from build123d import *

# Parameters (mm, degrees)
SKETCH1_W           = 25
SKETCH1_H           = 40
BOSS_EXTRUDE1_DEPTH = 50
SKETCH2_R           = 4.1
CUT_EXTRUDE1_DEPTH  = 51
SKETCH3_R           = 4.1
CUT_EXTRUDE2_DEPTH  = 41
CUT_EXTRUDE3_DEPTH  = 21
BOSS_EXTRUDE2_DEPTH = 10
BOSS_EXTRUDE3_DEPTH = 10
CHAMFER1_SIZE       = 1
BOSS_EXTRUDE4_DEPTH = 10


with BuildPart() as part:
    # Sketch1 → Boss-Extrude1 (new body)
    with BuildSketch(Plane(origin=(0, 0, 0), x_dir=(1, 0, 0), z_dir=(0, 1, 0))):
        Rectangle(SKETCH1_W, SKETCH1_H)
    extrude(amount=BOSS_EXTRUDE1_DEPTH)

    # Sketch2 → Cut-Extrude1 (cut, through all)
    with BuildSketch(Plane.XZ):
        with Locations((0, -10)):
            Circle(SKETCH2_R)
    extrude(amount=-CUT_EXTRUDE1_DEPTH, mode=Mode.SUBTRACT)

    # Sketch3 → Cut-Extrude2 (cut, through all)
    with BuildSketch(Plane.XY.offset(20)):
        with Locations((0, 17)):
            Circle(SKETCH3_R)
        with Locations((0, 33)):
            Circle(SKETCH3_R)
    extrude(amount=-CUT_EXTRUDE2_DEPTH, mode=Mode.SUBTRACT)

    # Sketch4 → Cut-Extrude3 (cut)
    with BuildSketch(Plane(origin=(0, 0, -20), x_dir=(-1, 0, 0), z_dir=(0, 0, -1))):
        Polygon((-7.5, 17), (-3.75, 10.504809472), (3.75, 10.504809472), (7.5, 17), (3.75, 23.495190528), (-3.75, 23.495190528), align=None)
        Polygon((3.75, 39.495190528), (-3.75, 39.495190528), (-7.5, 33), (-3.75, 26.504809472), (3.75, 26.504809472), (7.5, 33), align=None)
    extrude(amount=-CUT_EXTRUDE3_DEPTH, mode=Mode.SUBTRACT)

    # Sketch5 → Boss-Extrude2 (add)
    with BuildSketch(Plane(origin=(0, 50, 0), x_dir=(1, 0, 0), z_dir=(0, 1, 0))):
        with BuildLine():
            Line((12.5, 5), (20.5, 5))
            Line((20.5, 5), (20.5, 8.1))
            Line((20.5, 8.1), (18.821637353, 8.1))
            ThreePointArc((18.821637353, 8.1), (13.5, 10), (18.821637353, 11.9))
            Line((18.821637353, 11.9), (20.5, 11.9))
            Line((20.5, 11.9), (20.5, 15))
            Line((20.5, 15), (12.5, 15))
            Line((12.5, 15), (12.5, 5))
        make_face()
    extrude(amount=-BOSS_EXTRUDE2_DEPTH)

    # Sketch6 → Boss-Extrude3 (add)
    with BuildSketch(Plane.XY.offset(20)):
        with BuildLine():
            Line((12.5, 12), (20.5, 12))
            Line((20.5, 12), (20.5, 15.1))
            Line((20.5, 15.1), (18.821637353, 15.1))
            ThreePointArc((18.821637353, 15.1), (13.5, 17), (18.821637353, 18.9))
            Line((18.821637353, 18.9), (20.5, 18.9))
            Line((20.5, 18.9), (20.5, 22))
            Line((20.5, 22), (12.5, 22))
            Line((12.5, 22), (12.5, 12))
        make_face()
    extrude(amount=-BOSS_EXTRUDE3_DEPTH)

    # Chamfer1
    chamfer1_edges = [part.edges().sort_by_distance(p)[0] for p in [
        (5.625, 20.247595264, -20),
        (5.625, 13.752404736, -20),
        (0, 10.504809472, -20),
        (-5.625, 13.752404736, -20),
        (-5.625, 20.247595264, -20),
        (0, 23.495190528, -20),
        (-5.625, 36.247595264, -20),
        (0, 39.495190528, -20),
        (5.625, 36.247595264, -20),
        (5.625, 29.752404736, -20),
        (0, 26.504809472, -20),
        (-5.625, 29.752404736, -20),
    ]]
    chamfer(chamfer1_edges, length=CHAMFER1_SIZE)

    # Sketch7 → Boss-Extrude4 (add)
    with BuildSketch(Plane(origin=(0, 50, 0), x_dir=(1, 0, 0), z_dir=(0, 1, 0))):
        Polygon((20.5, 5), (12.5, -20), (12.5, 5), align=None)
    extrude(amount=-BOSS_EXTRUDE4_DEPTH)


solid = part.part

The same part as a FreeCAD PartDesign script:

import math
import FreeCAD as App
import Part
import Sketcher
Q = App.Units.Quantity


def edges_at(feature, points):
    """Names of the edges that pass closest to the given points."""
    edges = feature.Shape.Edges
    near = lambda p: min(range(len(edges)), key=lambda i: edges[i].distToShape(Part.Vertex(*p))[0])
    return sorted({f"Edge{near(p) + 1}" for p in points})

doc = App.newDocument("Part")
body = doc.addObject("PartDesign::Body", "Body")

sketch1 = body.newObject("Sketcher::SketchObject", "Sketch")
sketch1.AttachmentSupport = (doc.getObject("XZ_Plane"), [""])
sketch1.MapMode = "FlatFace"
sketch1.addGeometry(Part.LineSegment(App.Vector(-12, -20, 0), App.Vector(-12, 20, 0)), False)
sketch1.addGeometry(Part.LineSegment(App.Vector(-12, 20, 0), App.Vector(12, 20, 0)), False)
sketch1.addGeometry(Part.LineSegment(App.Vector(12, 20, 0), App.Vector(12, -20, 0)), False)
sketch1.addGeometry(Part.LineSegment(App.Vector(12, -20, 0), App.Vector(-12, -20, 0)), False)
sketch1.addConstraint(Sketcher.Constraint("Coincident", 0, 2, 1, 1))
sketch1.addConstraint(Sketcher.Constraint("Coincident", 1, 2, 2, 1))
sketch1.addConstraint(Sketcher.Constraint("Coincident", 2, 2, 3, 1))
sketch1.addConstraint(Sketcher.Constraint("Coincident", 3, 2, 0, 1))
sketch1.addConstraint(Sketcher.Constraint("Vertical", 0))
sketch1.addConstraint(Sketcher.Constraint("Horizontal", 1))
sketch1.addConstraint(Sketcher.Constraint("Vertical", 2))
sketch1.addConstraint(Sketcher.Constraint("Horizontal", 3))
sketch1.addConstraint(Sketcher.Constraint("Symmetric", 0, 2, 2, 2, -1, 1))
sketch1.addConstraint(Sketcher.Constraint("DistanceX", 1, 1, 1, 2, 25.0))
sketch1.addConstraint(Sketcher.Constraint("DistanceY", 0, 1, 0, 2, 40.0))
pad1 = body.newObject("PartDesign::Pad", "Pad")
pad1.Profile = sketch1
pad1.Length = 50
pad1.Reversed = True

sketch2 = body.newObject("Sketcher::SketchObject", "Sketch001")
sketch2.AttachmentSupport = (doc.getObject("XZ_Plane"), [""])
sketch2.MapMode = "FlatFace"
sketch2.addGeometry(Part.Circle(App.Vector(0, -10, 0), App.Vector(0, 0, 1), 4.1), False)
sketch2.addConstraint(Sketcher.Constraint("PointOnObject", 0, 3, -2))
sketch2.addConstraint(Sketcher.Constraint("Diameter", 0, 8.2))
sketch2.addConstraint(Sketcher.Constraint("DistanceY", 0, 3, -1, 1, 10.0))
pocket1 = body.newObject("PartDesign::Pocket", "Pocket")
pocket1.Profile = sketch2
pocket1.Type = "ThroughAll"

sketch3 = body.newObject("Sketcher::SketchObject", "Sketch002")
sketch3.AttachmentSupport = (doc.getObject("XY_Plane"), [""])
sketch3.MapMode = "FlatFace"
sketch3.AttachmentOffset = App.Placement(App.Vector(0, 0, 20), App.Rotation())
sketch3.addGeometry(Part.Circle(App.Vector(0, 17, 0), App.Vector(0, 0, 1), 4.1), False)
sketch3.addGeometry(Part.Circle(App.Vector(0, 33, 0), App.Vector(0, 0, 1), 4.1), False)
sketch3.addConstraint(Sketcher.Constraint("Equal", 0, 1))
sketch3.addConstraint(Sketcher.Constraint("PointOnObject", 0, 3, -2))
sketch3.addConstraint(Sketcher.Constraint("PointOnObject", 1, 3, -2))
sketch3.addConstraint(Sketcher.Constraint("Diameter", 0, 8.2))
sketch3.addConstraint(Sketcher.Constraint("DistanceY", -1, 1, 0, 3, 17.0))
sketch3.addConstraint(Sketcher.Constraint("DistanceY", -1, 1, 1, 3, 33.0))
pocket2 = body.newObject("PartDesign::Pocket", "Pocket001")
pocket2.Profile = sketch3
pocket2.Type = "ThroughAll"

sketch4 = body.newObject("Sketcher::SketchObject", "Sketch003")
sketch4.AttachmentSupport = (doc.getObject("XY_Plane"), [""])
sketch4.MapMode = "FlatFace"
sketch4.AttachmentOffset = App.Placement(App.Vector(0, 0, -20), App.Rotation())
sketch4.addGeometry(Part.LineSegment(App.Vector(8, 17, 0), App.Vector(4, 11, 0)), False)
sketch4.addGeometry(Part.LineSegment(App.Vector(4, 11, 0), App.Vector(-4, 11, 0)), False)
sketch4.addGeometry(Part.LineSegment(App.Vector(-4, 11, 0), App.Vector(-8, 17, 0)), False)
sketch4.addGeometry(Part.LineSegment(App.Vector(-8, 17, 0), App.Vector(-4, 23, 0)), False)
sketch4.addGeometry(Part.LineSegment(App.Vector(-4, 23, 0), App.Vector(4, 23, 0)), False)
sketch4.addGeometry(Part.LineSegment(App.Vector(4, 23, 0), App.Vector(8, 17, 0)), False)
sketch4.addGeometry(Part.LineSegment(App.Vector(-4, 39, 0), App.Vector(4, 39, 0)), False)
sketch4.addGeometry(Part.LineSegment(App.Vector(4, 39, 0), App.Vector(8, 33, 0)), False)
sketch4.addGeometry(Part.LineSegment(App.Vector(8, 33, 0), App.Vector(4, 27, 0)), False)
sketch4.addGeometry(Part.LineSegment(App.Vector(4, 27, 0), App.Vector(-4, 27, 0)), False)
sketch4.addGeometry(Part.LineSegment(App.Vector(-4, 27, 0), App.Vector(-8, 33, 0)), False)
sketch4.addGeometry(Part.LineSegment(App.Vector(-8, 33, 0), App.Vector(-4, 39, 0)), False)
sketch4.addConstraint(Sketcher.Constraint("Coincident", 0, 2, 1, 1))
sketch4.addConstraint(Sketcher.Constraint("Coincident", 1, 2, 2, 1))
sketch4.addConstraint(Sketcher.Constraint("Coincident", 2, 2, 3, 1))
sketch4.addConstraint(Sketcher.Constraint("Coincident", 3, 2, 4, 1))
sketch4.addConstraint(Sketcher.Constraint("Coincident", 4, 2, 5, 1))
sketch4.addConstraint(Sketcher.Constraint("Coincident", 5, 2, 0, 1))
sketch4.addConstraint(Sketcher.Constraint("Coincident", 6, 2, 7, 1))
sketch4.addConstraint(Sketcher.Constraint("Coincident", 7, 2, 8, 1))
sketch4.addConstraint(Sketcher.Constraint("Coincident", 8, 2, 9, 1))
sketch4.addConstraint(Sketcher.Constraint("Coincident", 9, 2, 10, 1))
sketch4.addConstraint(Sketcher.Constraint("Coincident", 10, 2, 11, 1))
sketch4.addConstraint(Sketcher.Constraint("Coincident", 11, 2, 6, 1))
sketch4.addConstraint(Sketcher.Constraint("Horizontal", 1))
sketch4.addConstraint(Sketcher.Constraint("Horizontal", 4))
sketch4.addConstraint(Sketcher.Constraint("Horizontal", 6))
sketch4.addConstraint(Sketcher.Constraint("Horizontal", 9))
sketch4.addConstraint(Sketcher.Constraint("Symmetric", 2, 2, 5, 2, -2))
sketch4.addConstraint(Sketcher.Constraint("Symmetric", 7, 2, 10, 2, -2))
sketch4.addConstraint(Sketcher.Constraint("Parallel", 0, 3))
sketch4.addConstraint(Sketcher.Constraint("Parallel", 2, 5))
sketch4.addConstraint(Sketcher.Constraint("Parallel", 5, 7))
sketch4.addConstraint(Sketcher.Constraint("Parallel", 3, 8))
sketch4.addConstraint(Sketcher.Constraint("Parallel", 7, 10))
sketch4.addConstraint(Sketcher.Constraint("Parallel", 8, 11))
sketch4.addConstraint(Sketcher.Constraint("Vertical", 1, 2, 3, 2))
sketch4.addConstraint(Sketcher.Constraint("Vertical", 0, 2, 4, 2))
sketch4.addConstraint(Sketcher.Constraint("Vertical", 4, 2, 6, 2))
sketch4.addConstraint(Sketcher.Constraint("Vertical", 5, 2, 7, 2))
sketch4.addConstraint(Sketcher.Constraint("Vertical", 6, 2, 8, 2))
sketch4.addConstraint(Sketcher.Constraint("Angle", 0, Q("-120 deg")))
sketch4.addConstraint(Sketcher.Constraint("DistanceX", 1, 2, 1, 1, 7.5))
sketch4.addConstraint(Sketcher.Constraint("DistanceY", -1, 1, 2, 2, 17.0))
sketch4.addConstraint(Sketcher.Constraint("DistanceY", -1, 1, 7, 2, 33.0))
sketch4.addConstraint(Sketcher.Constraint("DistanceX", 2, 2, 5, 2, 15.0))
pocket3 = body.newObject("PartDesign::Pocket", "Pocket002")
pocket3.Profile = sketch4
pocket3.Length = 21
pocket3.Reversed = True

sketch5 = body.newObject("Sketcher::SketchObject", "Sketch004")
sketch5.AttachmentSupport = (doc.getObject("XZ_Plane"), [""])
sketch5.MapMode = "FlatFace"
sketch5.AttachmentOffset = App.Placement(App.Vector(0, 0, -50), App.Rotation())
sketch5.addGeometry(Part.LineSegment(App.Vector(12.5, -5, 0), App.Vector(20.5, -5, 0)), False)
sketch5.addGeometry(Part.LineSegment(App.Vector(20.5, -5, 0), App.Vector(20.5, -8.1, 0)), False)
sketch5.addGeometry(Part.LineSegment(App.Vector(20.5, -8.1, 0), App.Vector(18.8, -8.1, 0)), False)
sketch5.addGeometry(Part.ArcOfCircle(Part.Circle(App.Vector(16.5, -10, 0), App.Vector(0, 0, 1), 3), math.radians(39), math.radians(321)), False)
sketch5.addGeometry(Part.LineSegment(App.Vector(18.8, -11.9, 0), App.Vector(20.5, -11.9, 0)), False)
sketch5.addGeometry(Part.LineSegment(App.Vector(20.5, -11.9, 0), App.Vector(20.5, -15, 0)), False)
sketch5.addGeometry(Part.LineSegment(App.Vector(20.5, -15, 0), App.Vector(12.5, -15, 0)), False)
sketch5.addGeometry(Part.LineSegment(App.Vector(12.5, -15, 0), App.Vector(12.5, -5, 0)), False)
sketch5.addConstraint(Sketcher.Constraint("Coincident", 0, 2, 1, 1))
sketch5.addConstraint(Sketcher.Constraint("Coincident", 1, 2, 2, 1))
sketch5.addConstraint(Sketcher.Constraint("Coincident", 2, 2, 3, 1))
sketch5.addConstraint(Sketcher.Constraint("Coincident", 3, 2, 4, 1))
sketch5.addConstraint(Sketcher.Constraint("Coincident", 4, 2, 5, 1))
sketch5.addConstraint(Sketcher.Constraint("Coincident", 5, 2, 6, 1))
sketch5.addConstraint(Sketcher.Constraint("Coincident", 6, 2, 7, 1))
sketch5.addConstraint(Sketcher.Constraint("Coincident", 7, 2, 0, 1))
sketch5.addConstraint(Sketcher.Constraint("Horizontal", 0))
sketch5.addConstraint(Sketcher.Constraint("Vertical", 1))
sketch5.addConstraint(Sketcher.Constraint("Horizontal", 2))
sketch5.addConstraint(Sketcher.Constraint("Horizontal", 4))
sketch5.addConstraint(Sketcher.Constraint("Vertical", 5))
sketch5.addConstraint(Sketcher.Constraint("Horizontal", 6))
sketch5.addConstraint(Sketcher.Constraint("Vertical", 7))
sketch5.addConstraint(Sketcher.Constraint("Vertical", 2, 2, 3, 2))
sketch5.addConstraint(Sketcher.Constraint("Vertical", 1, 2, 4, 2))
sketch5.addConstraint(Sketcher.Constraint("Equal", 1, 5))
sketch5.addConstraint(Sketcher.Constraint("Radius", 3, 3.0))
sketch5.addConstraint(Sketcher.Constraint("DistanceX", 0, 1, 0, 2, 8.0))
sketch5.addConstraint(Sketcher.Constraint("DistanceY", 7, 1, 7, 2, 10.0))
sketch5.addConstraint(Sketcher.Constraint("DistanceY", 1, 2, 1, 1, 3.1))
sketch5.addConstraint(Sketcher.Constraint("DistanceY", 3, 3, -1, 1, 10.0))
sketch5.addConstraint(Sketcher.Constraint("DistanceX", 3, 3, 0, 2, 4.0))
sketch5.addConstraint(Sketcher.Constraint("DistanceX", -1, 1, 3, 3, 16.5))
pad2 = body.newObject("PartDesign::Pad", "Pad001")
pad2.Profile = sketch5
pad2.Length = 10

sketch6 = body.newObject("Sketcher::SketchObject", "Sketch005")
sketch6.AttachmentSupport = (doc.getObject("XY_Plane"), [""])
sketch6.MapMode = "FlatFace"
sketch6.AttachmentOffset = App.Placement(App.Vector(0, 0, 20), App.Rotation())
sketch6.addGeometry(Part.LineSegment(App.Vector(12.5, 12, 0), App.Vector(20.5, 12, 0)), False)
sketch6.addGeometry(Part.LineSegment(App.Vector(20.5, 12, 0), App.Vector(20.5, 15.1, 0)), False)
sketch6.addGeometry(Part.LineSegment(App.Vector(20.5, 15.1, 0), App.Vector(18.8, 15.1, 0)), False)
sketch6.addGeometry(Part.ArcOfCircle(Part.Circle(App.Vector(16.5, 17, 0), App.Vector(0, 0, 1), 3), math.radians(39), math.radians(321)), False)
sketch6.addGeometry(Part.LineSegment(App.Vector(18.8, 18.9, 0), App.Vector(20.5, 18.9, 0)), False)
sketch6.addGeometry(Part.LineSegment(App.Vector(20.5, 18.9, 0), App.Vector(20.5, 22, 0)), False)
sketch6.addGeometry(Part.LineSegment(App.Vector(20.5, 22, 0), App.Vector(12.5, 22, 0)), False)
sketch6.addGeometry(Part.LineSegment(App.Vector(12.5, 22, 0), App.Vector(12.5, 12, 0)), False)
sketch6.addConstraint(Sketcher.Constraint("Coincident", 0, 2, 1, 1))
sketch6.addConstraint(Sketcher.Constraint("Coincident", 1, 2, 2, 1))
sketch6.addConstraint(Sketcher.Constraint("Coincident", 2, 2, 3, 2))
sketch6.addConstraint(Sketcher.Constraint("Coincident", 3, 1, 4, 1))
sketch6.addConstraint(Sketcher.Constraint("Coincident", 4, 2, 5, 1))
sketch6.addConstraint(Sketcher.Constraint("Coincident", 5, 2, 6, 1))
sketch6.addConstraint(Sketcher.Constraint("Coincident", 6, 2, 7, 1))
sketch6.addConstraint(Sketcher.Constraint("Coincident", 7, 2, 0, 1))
sketch6.addConstraint(Sketcher.Constraint("Horizontal", 0))
sketch6.addConstraint(Sketcher.Constraint("Vertical", 1))
sketch6.addConstraint(Sketcher.Constraint("Horizontal", 2))
sketch6.addConstraint(Sketcher.Constraint("Horizontal", 4))
sketch6.addConstraint(Sketcher.Constraint("Vertical", 5))
sketch6.addConstraint(Sketcher.Constraint("Horizontal", 6))
sketch6.addConstraint(Sketcher.Constraint("Vertical", 7))
sketch6.addConstraint(Sketcher.Constraint("Vertical", 2, 2, 3, 1))
sketch6.addConstraint(Sketcher.Constraint("Vertical", 1, 2, 4, 2))
sketch6.addConstraint(Sketcher.Constraint("Equal", 1, 5))
sketch6.addConstraint(Sketcher.Constraint("Radius", 3, 3.0))
sketch6.addConstraint(Sketcher.Constraint("DistanceX", 0, 1, 0, 2, 8.0))
sketch6.addConstraint(Sketcher.Constraint("DistanceY", 7, 2, 7, 1, 10.0))
sketch6.addConstraint(Sketcher.Constraint("DistanceY", 1, 1, 1, 2, 3.1))
sketch6.addConstraint(Sketcher.Constraint("DistanceY", -1, 1, 3, 3, 17.0))
sketch6.addConstraint(Sketcher.Constraint("DistanceX", 3, 3, 0, 2, 4.0))
sketch6.addConstraint(Sketcher.Constraint("DistanceX", -1, 1, 3, 3, 16.5))
pad3 = body.newObject("PartDesign::Pad", "Pad002")
pad3.Profile = sketch6
pad3.Length = 10
pad3.Reversed = True
doc.recompute()

chamfer = body.newObject("PartDesign::Chamfer", "Chamfer")
chamfer.Base = (pad3, edges_at(pad3, [
    (5.625, 20.248, -20),
    (5.625, 13.752, -20),
    (0, 10.505, -20),
    (-5.625, 13.752, -20),
    (-5.625, 20.248, -20),
    (0, 23.495, -20),
    (-5.625, 36.248, -20),
    (0, 39.495, -20),
    (5.625, 36.248, -20),
    (5.625, 29.752, -20),
    (0, 26.505, -20),
    (-5.625, 29.752, -20),
]))
chamfer.Size = 1

sketch7 = body.newObject("Sketcher::SketchObject", "Sketch006")
sketch7.AttachmentSupport = (doc.getObject("XZ_Plane"), [""])
sketch7.MapMode = "FlatFace"
sketch7.AttachmentOffset = App.Placement(App.Vector(0, 0, -50), App.Rotation())
sketch7.addGeometry(Part.LineSegment(App.Vector(12, 20, 0), App.Vector(20, -5, 0)), False)
sketch7.addGeometry(Part.LineSegment(App.Vector(20, -5, 0), App.Vector(12, -5, 0)), False)
sketch7.addGeometry(Part.LineSegment(App.Vector(12, -5, 0), App.Vector(12, 20, 0)), False)
sketch7.addConstraint(Sketcher.Constraint("Coincident", 0, 2, 1, 1))
sketch7.addConstraint(Sketcher.Constraint("Coincident", 1, 2, 2, 1))
sketch7.addConstraint(Sketcher.Constraint("Coincident", 2, 2, 0, 1))
sketch7.addConstraint(Sketcher.Constraint("Horizontal", 1))
sketch7.addConstraint(Sketcher.Constraint("Vertical", 2))
sketch7.addConstraint(Sketcher.Constraint("DistanceX", 1, 2, 1, 1, 8.0))
sketch7.addConstraint(Sketcher.Constraint("DistanceY", 2, 1, 2, 2, 25.0))
sketch7.addConstraint(Sketcher.Constraint("DistanceY", 0, 2, -1, 1, 5.0))
sketch7.addConstraint(Sketcher.Constraint("DistanceX", -1, 1, 0, 2, 20.5))
pad4 = body.newObject("PartDesign::Pad", "Pad003")
pad4.Profile = sketch7
pad4.Length = 10

doc.recompute()
